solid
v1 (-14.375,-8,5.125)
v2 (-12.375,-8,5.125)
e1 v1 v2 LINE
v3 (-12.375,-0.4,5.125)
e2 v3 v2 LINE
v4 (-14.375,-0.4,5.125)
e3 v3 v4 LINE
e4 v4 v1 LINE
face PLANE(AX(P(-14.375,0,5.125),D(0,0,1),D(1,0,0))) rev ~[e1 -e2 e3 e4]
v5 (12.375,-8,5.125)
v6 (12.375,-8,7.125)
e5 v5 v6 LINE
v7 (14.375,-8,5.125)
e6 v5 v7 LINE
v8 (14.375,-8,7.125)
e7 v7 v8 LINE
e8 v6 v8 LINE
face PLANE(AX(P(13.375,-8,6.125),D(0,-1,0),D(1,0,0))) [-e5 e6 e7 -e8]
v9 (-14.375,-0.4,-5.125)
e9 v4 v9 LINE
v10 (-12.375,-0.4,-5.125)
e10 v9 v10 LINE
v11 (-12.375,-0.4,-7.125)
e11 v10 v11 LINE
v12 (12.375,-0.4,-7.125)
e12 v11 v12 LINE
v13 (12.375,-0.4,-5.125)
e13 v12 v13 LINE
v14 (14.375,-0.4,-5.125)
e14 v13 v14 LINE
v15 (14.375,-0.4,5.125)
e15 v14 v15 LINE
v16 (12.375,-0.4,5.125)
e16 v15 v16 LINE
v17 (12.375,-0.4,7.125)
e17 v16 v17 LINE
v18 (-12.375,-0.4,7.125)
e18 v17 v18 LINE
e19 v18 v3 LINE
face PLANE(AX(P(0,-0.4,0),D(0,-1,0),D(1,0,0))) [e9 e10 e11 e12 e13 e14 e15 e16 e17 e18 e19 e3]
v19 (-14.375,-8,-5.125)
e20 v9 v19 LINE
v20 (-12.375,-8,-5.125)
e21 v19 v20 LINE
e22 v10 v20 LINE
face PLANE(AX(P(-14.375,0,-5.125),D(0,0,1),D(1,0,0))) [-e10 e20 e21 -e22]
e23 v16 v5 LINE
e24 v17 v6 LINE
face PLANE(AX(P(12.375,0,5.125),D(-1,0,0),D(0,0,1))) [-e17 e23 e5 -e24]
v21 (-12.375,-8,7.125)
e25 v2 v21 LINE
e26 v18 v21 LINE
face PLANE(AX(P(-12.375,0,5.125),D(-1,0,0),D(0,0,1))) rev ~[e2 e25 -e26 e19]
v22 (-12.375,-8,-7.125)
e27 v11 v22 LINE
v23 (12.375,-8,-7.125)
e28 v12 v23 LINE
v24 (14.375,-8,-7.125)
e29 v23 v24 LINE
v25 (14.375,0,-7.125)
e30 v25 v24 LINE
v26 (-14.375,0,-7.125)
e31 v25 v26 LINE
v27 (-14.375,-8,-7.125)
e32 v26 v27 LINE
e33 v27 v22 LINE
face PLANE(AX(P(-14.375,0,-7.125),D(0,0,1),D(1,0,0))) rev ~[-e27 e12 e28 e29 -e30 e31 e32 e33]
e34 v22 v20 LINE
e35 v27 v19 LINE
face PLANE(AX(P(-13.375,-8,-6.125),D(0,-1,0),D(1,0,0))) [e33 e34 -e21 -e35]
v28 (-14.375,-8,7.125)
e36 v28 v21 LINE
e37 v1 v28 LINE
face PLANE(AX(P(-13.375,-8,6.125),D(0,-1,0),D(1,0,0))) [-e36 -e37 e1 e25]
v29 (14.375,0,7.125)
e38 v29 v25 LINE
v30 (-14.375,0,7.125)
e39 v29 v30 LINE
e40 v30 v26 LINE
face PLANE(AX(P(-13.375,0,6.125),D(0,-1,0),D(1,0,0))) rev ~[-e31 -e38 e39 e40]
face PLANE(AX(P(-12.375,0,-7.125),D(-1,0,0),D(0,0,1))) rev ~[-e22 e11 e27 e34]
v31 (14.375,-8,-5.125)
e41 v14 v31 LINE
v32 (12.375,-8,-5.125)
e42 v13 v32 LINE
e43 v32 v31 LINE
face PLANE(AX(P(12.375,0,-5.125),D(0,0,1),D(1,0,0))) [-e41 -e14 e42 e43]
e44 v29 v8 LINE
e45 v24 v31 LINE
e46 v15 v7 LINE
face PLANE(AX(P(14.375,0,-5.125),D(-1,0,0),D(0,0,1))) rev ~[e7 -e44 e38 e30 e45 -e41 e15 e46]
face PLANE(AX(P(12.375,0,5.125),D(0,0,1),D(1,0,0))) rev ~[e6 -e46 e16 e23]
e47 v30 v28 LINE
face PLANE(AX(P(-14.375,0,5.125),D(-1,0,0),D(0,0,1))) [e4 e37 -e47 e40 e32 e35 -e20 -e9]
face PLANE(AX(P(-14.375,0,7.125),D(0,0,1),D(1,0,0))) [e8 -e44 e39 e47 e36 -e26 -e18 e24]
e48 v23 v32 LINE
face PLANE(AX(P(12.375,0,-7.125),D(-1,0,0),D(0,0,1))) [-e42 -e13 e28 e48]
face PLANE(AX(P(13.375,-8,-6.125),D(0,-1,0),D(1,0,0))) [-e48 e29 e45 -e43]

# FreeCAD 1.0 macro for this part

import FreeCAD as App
import Part
import Sketcher

doc = App.newDocument("Part")
body = doc.addObject("PartDesign::Body", "Body")

# Sketch on XZ plane
sketch1 = doc.addObject("Sketcher::SketchObject", "Sketch")
body.addObject(sketch1)
sketch1.AttachmentSupport = (doc.XZ_Plane, [""])
sketch1.MapMode = "FlatFace"
sketch1.addGeometry(Part.LineSegment(App.Vector(12.4, 5.1, 0), App.Vector(12.4, 7.1, 0)), False)
sketch1.addGeometry(Part.LineSegment(App.Vector(12.4, 7.1, 0), App.Vector(-12.4, 7.1, 0)), False)
sketch1.addGeometry(Part.LineSegment(App.Vector(-12.4, 7.1, 0), App.Vector(-12.4, 5.1, 0)), False)
sketch1.addGeometry(Part.LineSegment(App.Vector(-12.4, 5.1, 0), App.Vector(-14.4, 5.1, 0)), False)
sketch1.addGeometry(Part.LineSegment(App.Vector(-14.4, 5.1, 0), App.Vector(-14.4, -5.1, 0)), False)
sketch1.addGeometry(Part.LineSegment(App.Vector(-14.4, -5.1, 0), App.Vector(-12.4, -5.1, 0)), False)
sketch1.addGeometry(Part.LineSegment(App.Vector(-12.4, -5.1, 0), App.Vector(-12.4, -7.1, 0)), False)
sketch1.addGeometry(Part.LineSegment(App.Vector(-12.4, -7.1, 0), App.Vector(12.4, -7.1, 0)), False)
sketch1.addGeometry(Part.LineSegment(App.Vector(12.4, -7.1, 0), App.Vector(12.4, -5.1, 0)), False)
sketch1.addGeometry(Part.LineSegment(App.Vector(12.4, -5.1, 0), App.Vector(14.4, -5.1, 0)), False)
sketch1.addGeometry(Part.LineSegment(App.Vector(14.4, -5.1, 0), App.Vector(14.4, 5.1, 0)), False)
sketch1.addGeometry(Part.LineSegment(App.Vector(14.4, 5.1, 0), App.Vector(12.4, 5.1, 0)), False)
sketch1.addConstraint(Sketcher.Constraint("Coincident", 0, 2, 1, 1))
sketch1.addConstraint(Sketcher.Constraint("Coincident", 1, 2, 2, 1))
sketch1.addConstraint(Sketcher.Constraint("Coincident", 2, 2, 3, 1))
sketch1.addConstraint(Sketcher.Constraint("Coincident", 3, 2, 4, 1))
sketch1.addConstraint(Sketcher.Constraint("Coincident", 4, 2, 5, 1))
sketch1.addConstraint(Sketcher.Constraint("Coincident", 5, 2, 6, 1))
sketch1.addConstraint(Sketcher.Constraint("Coincident", 6, 2, 7, 1))
sketch1.addConstraint(Sketcher.Constraint("Coincident", 7, 2, 8, 1))
sketch1.addConstraint(Sketcher.Constraint("Coincident", 8, 2, 9, 1))
sketch1.addConstraint(Sketcher.Constraint("Coincident", 9, 2, 10, 1))
sketch1.addConstraint(Sketcher.Constraint("Coincident", 10, 2, 11, 1))
sketch1.addConstraint(Sketcher.Constraint("Coincident", 11, 2, 0, 1))
sketch1.addConstraint(Sketcher.Constraint("Vertical", 0))
sketch1.addConstraint(Sketcher.Constraint("Horizontal", 1))
sketch1.addConstraint(Sketcher.Constraint("Vertical", 2))
sketch1.addConstraint(Sketcher.Constraint("Horizontal", 3))
sketch1.addConstraint(Sketcher.Constraint("Vertical", 4))
sketch1.addConstraint(Sketcher.Constraint("Horizontal", 5))
sketch1.addConstraint(Sketcher.Constraint("Vertical", 6))
sketch1.addConstraint(Sketcher.Constraint("Horizontal", 7))
sketch1.addConstraint(Sketcher.Constraint("Vertical", 8))
sketch1.addConstraint(Sketcher.Constraint("Horizontal", 9))
sketch1.addConstraint(Sketcher.Constraint("Vertical", 10))
sketch1.addConstraint(Sketcher.Constraint("Horizontal", 11))
sketch1.addConstraint(Sketcher.Constraint("Symmetric", 0, 2, 6, 2, -1, 1))
sketch1.addConstraint(Sketcher.Constraint("Symmetric", 2, 2, 8, 2, -1, 1))
sketch1.addConstraint(Sketcher.Constraint("Symmetric", 4, 2, 10, 2, -1, 1))
sketch1.addConstraint(Sketcher.Constraint("Symmetric", 5, 2, 8, 2, -2))
sketch1.addConstraint(Sketcher.Constraint("Equal", 11, 0))
sketch1.addConstraint(Sketcher.Constraint("DistanceX", 3, 2, 3, 1, 2.0))
sketch1.addConstraint(Sketcher.Constraint("DistanceX", 1, 2, 1, 1, 24.75))
sketch1.addConstraint(Sketcher.Constraint("DistanceY", 4, 2, 4, 1, 10.25))
pad1 = doc.addObject("PartDesign::Pad", "Pad")
body.addObject(pad1)
pad1.Profile = sketch1
pad1.Length = 0.4

# Sketch on XZ plane
sketch2 = doc.addObject("Sketcher::SketchObject", "Sketch001")
body.addObject(sketch2)
sketch2.AttachmentSupport = (doc.XZ_Plane, [""])
sketch2.MapMode = "FlatFace"
sketch2.addGeometry(Part.LineSegment(App.Vector(-14.4, 7.1, 0), App.Vector(-14.4, 5.1, 0)), False)
sketch2.addGeometry(Part.LineSegment(App.Vector(-14.4, 5.1, 0), App.Vector(-12.4, 5.1, 0)), False)
sketch2.addGeometry(Part.LineSegment(App.Vector(-12.4, 5.1, 0), App.Vector(-12.4, 7.1, 0)), False)
sketch2.addGeometry(Part.LineSegment(App.Vector(-12.4, 7.1, 0), App.Vector(-14.4, 7.1, 0)), False)
sketch2.addGeometry(Part.LineSegment(App.Vector(-14.4, -5.1, 0), App.Vector(-14.4, -7.1, 0)), False)
sketch2.addGeometry(Part.LineSegment(App.Vector(-14.4, -7.1, 0), App.Vector(-12.4, -7.1, 0)), False)
sketch2.addGeometry(Part.LineSegment(App.Vector(-12.4, -7.1, 0), App.Vector(-12.4, -5.1, 0)), False)
sketch2.addGeometry(Part.LineSegment(App.Vector(-12.4, -5.1, 0), App.Vector(-14.4, -5.1, 0)), False)
sketch2.addGeometry(Part.LineSegment(App.Vector(12.4, -5.1, 0), App.Vector(12.4, -7.1, 0)), False)
sketch2.addGeometry(Part.LineSegment(App.Vector(12.4, -7.1, 0), App.Vector(14.4, -7.1, 0)), False)
sketch2.addGeometry(Part.LineSegment(App.Vector(14.4, -7.1, 0), App.Vector(14.4, -5.1, 0)), False)
sketch2.addGeometry(Part.LineSegment(App.Vector(14.4, -5.1, 0), App.Vector(12.4, -5.1, 0)), False)
sketch2.addGeometry(Part.LineSegment(App.Vector(12.4, 7.1, 0), App.Vector(12.4, 5.1, 0)), False)
sketch2.addGeometry(Part.LineSegment(App.Vector(12.4, 5.1, 0), App.Vector(14.4, 5.1, 0)), False)
sketch2.addGeometry(Part.LineSegment(App.Vector(14.4, 5.1, 0), App.Vector(14.4, 7.1, 0)), False)
sketch2.addGeometry(Part.LineSegment(App.Vector(14.4, 7.1, 0), App.Vector(12.4, 7.1, 0)), False)
sketch2.addConstraint(Sketcher.Constraint("Coincident", 0, 2, 1, 1))
sketch2.addConstraint(Sketcher.Constraint("Coincident", 1, 2, 2, 1))
sketch2.addConstraint(Sketcher.Constraint("Coincident", 2, 2, 3, 1))
sketch2.addConstraint(Sketcher.Constraint("Coincident", 3, 2, 0, 1))
sketch2.addConstraint(Sketcher.Constraint("Coincident", 4, 2, 5, 1))
sketch2.addConstraint(Sketcher.Constraint("Coincident", 5, 2, 6, 1))
sketch2.addConstraint(Sketcher.Constraint("Coincident", 6, 2, 7, 1))
sketch2.addConstraint(Sketcher.Constraint("Coincident", 7, 2, 4, 1))
sketch2.addConstraint(Sketcher.Constraint("Coincident", 8, 2, 9, 1))
sketch2.addConstraint(Sketcher.Constraint("Coincident", 9, 2, 10, 1))
sketch2.addConstraint(Sketcher.Constraint("Coincident", 10, 2, 11, 1))
sketch2.addConstraint(Sketcher.Constraint("Coincident", 11, 2, 8, 1))
sketch2.addConstraint(Sketcher.Constraint("Coincident", 12, 2, 13, 1))
sketch2.addConstraint(Sketcher.Constraint("Coincident", 13, 2, 14, 1))
sketch2.addConstraint(Sketcher.Constraint("Coincident", 14, 2, 15, 1))
sketch2.addConstraint(Sketcher.Constraint("Coincident", 15, 2, 12, 1))
sketch2.addConstraint(Sketcher.Constraint("Vertical", 0))
sketch2.addConstraint(Sketcher.Constraint("Horizontal", 1))
sketch2.addConstraint(Sketcher.Constraint("Vertical", 2))
sketch2.addConstraint(Sketcher.Constraint("Horizontal", 3))
sketch2.addConstraint(Sketcher.Constraint("Vertical", 4))
sketch2.addConstraint(Sketcher.Constraint("Horizontal", 5))
sketch2.addConstraint(Sketcher.Constraint("Vertical", 6))
sketch2.addConstraint(Sketcher.Constraint("Horizontal", 7))
sketch2.addConstraint(Sketcher.Constraint("Vertical", 8))
sketch2.addConstraint(Sketcher.Constraint("Horizontal", 9))
sketch2.addConstraint(Sketcher.Constraint("Vertical", 10))
sketch2.addConstraint(Sketcher.Constraint("Horizontal", 11))
sketch2.addConstraint(Sketcher.Constraint("Vertical", 12))
sketch2.addConstraint(Sketcher.Constraint("Horizontal", 13))
sketch2.addConstraint(Sketcher.Constraint("Vertical", 14))
sketch2.addConstraint(Sketcher.Constraint("Horizontal", 15))
sketch2.addConstraint(Sketcher.Constraint("Symmetric", 2, 2, 8, 2, -1, 1))
sketch2.addConstraint(Sketcher.Constraint("Symmetric", 0, 2, 10, 2, -1, 1))
sketch2.addConstraint(Sketcher.Constraint("Symmetric", 6, 2, 12, 2, -1, 1))
sketch2.addConstraint(Sketcher.Constraint("Symmetric", 4, 2, 14, 2, -1, 1))
sketch2.addConstraint(Sketcher.Constraint("Symmetric", 5, 2, 8, 2, -2))
sketch2.addConstraint(Sketcher.Constraint("Symmetric", 7, 2, 10, 2, -2))
sketch2.addConstraint(Sketcher.Constraint("Equal", 15, 0))
sketch2.addConstraint(Sketcher.Constraint("DistanceX", 1, 1, 1, 2, 2.0))
sketch2.addConstraint(Sketcher.Constraint("DistanceY", 4, 2, 0, 2, 12.25))
sketch2.addConstraint(Sketcher.Constraint("DistanceX", 5, 2, 8, 2, 24.75))
pad2 = doc.addObject("PartDesign::Pad", "Pad001")
body.addObject(pad2)
pad2.Profile = sketch2
pad2.Length = 8

doc.recompute()
